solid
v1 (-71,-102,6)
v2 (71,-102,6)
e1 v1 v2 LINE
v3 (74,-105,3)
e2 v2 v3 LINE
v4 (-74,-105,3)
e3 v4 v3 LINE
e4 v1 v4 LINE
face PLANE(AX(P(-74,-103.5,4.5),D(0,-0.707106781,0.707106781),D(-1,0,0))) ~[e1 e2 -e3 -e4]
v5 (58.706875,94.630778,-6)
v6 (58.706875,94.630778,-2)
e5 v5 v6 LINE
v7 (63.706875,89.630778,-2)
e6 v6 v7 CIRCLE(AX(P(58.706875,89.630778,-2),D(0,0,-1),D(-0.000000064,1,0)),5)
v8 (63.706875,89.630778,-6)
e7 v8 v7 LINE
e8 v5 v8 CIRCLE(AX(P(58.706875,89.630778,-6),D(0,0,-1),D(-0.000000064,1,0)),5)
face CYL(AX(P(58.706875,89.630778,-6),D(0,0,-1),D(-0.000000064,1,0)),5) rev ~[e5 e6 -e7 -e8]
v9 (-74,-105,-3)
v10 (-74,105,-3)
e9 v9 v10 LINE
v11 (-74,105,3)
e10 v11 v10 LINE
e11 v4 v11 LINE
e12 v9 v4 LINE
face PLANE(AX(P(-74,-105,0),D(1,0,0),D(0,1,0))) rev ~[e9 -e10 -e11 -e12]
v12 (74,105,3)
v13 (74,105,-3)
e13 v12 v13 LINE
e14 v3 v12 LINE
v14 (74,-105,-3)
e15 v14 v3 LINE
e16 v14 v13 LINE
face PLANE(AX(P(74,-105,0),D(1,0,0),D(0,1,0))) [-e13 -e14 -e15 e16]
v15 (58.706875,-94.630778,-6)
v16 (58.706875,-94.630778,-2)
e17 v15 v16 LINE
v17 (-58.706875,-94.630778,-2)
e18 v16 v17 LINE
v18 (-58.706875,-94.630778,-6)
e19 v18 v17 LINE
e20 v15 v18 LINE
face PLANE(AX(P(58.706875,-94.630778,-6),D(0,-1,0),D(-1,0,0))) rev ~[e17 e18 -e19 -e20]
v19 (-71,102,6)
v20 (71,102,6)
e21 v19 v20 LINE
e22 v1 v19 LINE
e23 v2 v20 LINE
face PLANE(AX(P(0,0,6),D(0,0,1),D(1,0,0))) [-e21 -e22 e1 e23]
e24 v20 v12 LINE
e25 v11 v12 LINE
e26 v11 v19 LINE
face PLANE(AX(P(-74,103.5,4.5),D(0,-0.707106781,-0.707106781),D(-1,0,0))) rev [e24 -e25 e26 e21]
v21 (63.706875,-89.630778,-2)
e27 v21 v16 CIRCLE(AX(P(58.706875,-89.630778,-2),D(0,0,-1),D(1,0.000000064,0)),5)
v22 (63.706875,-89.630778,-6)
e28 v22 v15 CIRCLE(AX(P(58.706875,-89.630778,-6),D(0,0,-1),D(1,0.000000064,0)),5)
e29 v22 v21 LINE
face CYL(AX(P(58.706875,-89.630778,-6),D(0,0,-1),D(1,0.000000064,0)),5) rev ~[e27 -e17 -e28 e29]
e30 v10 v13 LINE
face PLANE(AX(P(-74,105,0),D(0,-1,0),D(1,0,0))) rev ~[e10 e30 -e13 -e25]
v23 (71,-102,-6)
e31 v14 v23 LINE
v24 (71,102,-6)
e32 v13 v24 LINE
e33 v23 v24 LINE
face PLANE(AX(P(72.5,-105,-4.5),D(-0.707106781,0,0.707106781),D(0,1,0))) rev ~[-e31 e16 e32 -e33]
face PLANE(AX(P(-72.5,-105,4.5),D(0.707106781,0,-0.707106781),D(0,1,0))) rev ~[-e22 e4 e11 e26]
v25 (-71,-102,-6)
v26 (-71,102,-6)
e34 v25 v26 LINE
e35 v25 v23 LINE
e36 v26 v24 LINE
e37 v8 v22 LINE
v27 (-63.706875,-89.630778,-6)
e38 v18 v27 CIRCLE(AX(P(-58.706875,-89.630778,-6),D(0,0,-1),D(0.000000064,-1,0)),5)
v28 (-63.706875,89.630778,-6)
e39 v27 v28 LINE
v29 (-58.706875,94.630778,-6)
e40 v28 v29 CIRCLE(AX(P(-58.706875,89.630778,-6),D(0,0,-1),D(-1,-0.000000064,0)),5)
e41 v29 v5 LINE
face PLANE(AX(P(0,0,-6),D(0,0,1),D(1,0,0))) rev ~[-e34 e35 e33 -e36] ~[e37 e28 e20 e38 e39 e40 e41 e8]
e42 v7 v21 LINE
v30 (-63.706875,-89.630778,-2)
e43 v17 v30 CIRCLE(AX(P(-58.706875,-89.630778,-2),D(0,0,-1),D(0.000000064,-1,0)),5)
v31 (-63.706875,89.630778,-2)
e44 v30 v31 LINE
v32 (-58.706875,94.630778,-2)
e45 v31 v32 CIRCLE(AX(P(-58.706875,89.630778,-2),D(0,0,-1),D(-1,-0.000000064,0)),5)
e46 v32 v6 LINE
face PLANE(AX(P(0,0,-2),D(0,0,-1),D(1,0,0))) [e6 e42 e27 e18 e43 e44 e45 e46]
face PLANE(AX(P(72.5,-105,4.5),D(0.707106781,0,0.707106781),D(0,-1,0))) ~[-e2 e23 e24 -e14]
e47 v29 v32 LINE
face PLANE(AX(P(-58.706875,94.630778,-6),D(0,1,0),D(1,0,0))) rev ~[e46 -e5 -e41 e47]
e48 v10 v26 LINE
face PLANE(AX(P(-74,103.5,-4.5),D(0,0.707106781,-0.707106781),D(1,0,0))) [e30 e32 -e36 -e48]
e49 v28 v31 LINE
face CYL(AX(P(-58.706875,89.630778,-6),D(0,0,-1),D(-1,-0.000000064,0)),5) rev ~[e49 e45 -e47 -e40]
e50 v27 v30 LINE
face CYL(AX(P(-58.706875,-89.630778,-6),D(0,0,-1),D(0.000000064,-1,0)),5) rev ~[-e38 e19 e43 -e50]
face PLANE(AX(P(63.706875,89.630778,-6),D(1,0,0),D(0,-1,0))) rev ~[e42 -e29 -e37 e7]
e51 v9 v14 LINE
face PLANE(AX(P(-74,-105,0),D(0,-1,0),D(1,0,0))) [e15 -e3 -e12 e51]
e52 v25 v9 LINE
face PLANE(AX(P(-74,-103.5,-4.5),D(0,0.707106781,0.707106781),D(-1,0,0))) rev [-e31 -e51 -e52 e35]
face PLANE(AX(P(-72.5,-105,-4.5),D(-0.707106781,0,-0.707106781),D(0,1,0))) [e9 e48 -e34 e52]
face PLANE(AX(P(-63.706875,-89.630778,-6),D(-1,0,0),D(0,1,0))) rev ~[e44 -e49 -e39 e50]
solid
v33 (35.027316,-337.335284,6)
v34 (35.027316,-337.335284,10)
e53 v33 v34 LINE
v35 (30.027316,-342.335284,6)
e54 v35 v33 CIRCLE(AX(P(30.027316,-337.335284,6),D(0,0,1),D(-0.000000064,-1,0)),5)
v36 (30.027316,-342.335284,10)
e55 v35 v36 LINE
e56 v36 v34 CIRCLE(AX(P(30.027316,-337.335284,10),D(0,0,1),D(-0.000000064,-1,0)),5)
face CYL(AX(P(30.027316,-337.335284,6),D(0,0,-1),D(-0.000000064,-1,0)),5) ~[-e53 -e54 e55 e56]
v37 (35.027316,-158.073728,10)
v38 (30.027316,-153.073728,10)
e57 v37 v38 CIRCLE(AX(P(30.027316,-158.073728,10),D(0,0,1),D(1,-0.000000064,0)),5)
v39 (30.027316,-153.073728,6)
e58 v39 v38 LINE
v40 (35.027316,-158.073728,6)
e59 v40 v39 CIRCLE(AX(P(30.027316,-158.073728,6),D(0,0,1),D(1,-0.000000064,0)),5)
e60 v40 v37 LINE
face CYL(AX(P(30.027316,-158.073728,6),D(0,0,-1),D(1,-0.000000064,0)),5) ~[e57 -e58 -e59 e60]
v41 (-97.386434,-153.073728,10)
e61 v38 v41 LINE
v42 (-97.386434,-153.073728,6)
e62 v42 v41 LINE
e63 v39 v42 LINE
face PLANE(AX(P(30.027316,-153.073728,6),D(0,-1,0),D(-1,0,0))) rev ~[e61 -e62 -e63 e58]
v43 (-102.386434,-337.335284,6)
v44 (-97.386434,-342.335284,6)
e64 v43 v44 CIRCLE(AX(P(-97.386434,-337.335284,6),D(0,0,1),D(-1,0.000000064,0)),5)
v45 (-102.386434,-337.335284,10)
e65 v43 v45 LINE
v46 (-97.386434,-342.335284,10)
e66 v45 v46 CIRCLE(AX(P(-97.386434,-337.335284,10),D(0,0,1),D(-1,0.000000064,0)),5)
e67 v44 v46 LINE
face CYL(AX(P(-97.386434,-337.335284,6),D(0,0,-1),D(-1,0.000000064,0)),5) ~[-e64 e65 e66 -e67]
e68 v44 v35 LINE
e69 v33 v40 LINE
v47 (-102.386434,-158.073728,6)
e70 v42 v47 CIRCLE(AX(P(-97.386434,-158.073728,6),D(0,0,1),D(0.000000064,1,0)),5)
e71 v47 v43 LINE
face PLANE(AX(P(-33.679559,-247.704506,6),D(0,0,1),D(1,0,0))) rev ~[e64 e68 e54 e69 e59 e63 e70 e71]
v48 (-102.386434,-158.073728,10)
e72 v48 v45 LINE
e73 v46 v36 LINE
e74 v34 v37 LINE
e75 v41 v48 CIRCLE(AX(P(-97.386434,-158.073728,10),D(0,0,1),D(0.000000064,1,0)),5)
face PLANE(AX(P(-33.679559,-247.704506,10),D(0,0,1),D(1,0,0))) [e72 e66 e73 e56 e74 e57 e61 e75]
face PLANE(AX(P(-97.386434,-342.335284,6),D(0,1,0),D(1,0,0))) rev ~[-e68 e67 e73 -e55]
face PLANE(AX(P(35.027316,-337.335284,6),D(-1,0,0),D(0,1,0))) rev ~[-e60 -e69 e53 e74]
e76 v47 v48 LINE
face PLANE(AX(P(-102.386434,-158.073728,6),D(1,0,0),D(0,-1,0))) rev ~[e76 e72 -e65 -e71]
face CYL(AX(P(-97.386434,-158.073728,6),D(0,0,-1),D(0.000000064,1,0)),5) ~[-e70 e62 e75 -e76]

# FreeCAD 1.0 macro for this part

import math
import FreeCAD as App
import Part
import Sketcher


def edges_at(feature, points):
    """Names of the edges that pass closest to the given points."""
    edges = feature.Shape.Edges
    near = lambda p: min(range(len(edges)), key=lambda i: edges[i].distToShape(Part.Vertex(*p))[0])
    return sorted({f"Edge{near(p) + 1}" for p in points})

doc = App.newDocument("Part")
body = doc.addObject("PartDesign::Body", "Body")

# Sketch on XY plane
sketch1 = body.newObject("Sketcher::SketchObject", "Sketch")
sketch1.AttachmentSupport = (doc.getObject("XY_Plane"), [""])
sketch1.MapMode = "FlatFace"
sketch1.addGeometry([
    Part.LineSegment(App.Vector(-74, 105, 0), App.Vector(-74, -105, 0)),
    Part.LineSegment(App.Vector(-74, -105, 0), App.Vector(74, -105, 0)),
    Part.LineSegment(App.Vector(74, -105, 0), App.Vector(74, 105, 0)),
    Part.LineSegment(App.Vector(74, 105, 0), App.Vector(-74, 105, 0)),
], False)
sketch1.addConstraint([
    Sketcher.Constraint("Coincident", 0, 2, 1, 1),
    Sketcher.Constraint("Coincident", 1, 2, 2, 1),
    Sketcher.Constraint("Coincident", 2, 2, 3, 1),
    Sketcher.Constraint("Coincident", 3, 2, 0, 1),
    Sketcher.Constraint("Vertical", 0),
    Sketcher.Constraint("Horizontal", 1),
    Sketcher.Constraint("Vertical", 2),
    Sketcher.Constraint("Horizontal", 3),
    Sketcher.Constraint("Symmetric", 0, 2, 2, 2, -1, 1),
    Sketcher.Constraint("DistanceX", 1, 1, 1, 2, 148.0),
    Sketcher.Constraint("DistanceY", 0, 2, 0, 1, 210.0),
])
pad1 = body.newObject("PartDesign::Pad", "Pad")
pad1.Profile = sketch1
pad1.Length = 12
pad1.Midplane = True
doc.recompute()

chamfer = body.newObject("PartDesign::Chamfer", "Chamfer")
chamfer.Base = (pad1, edges_at(pad1, [
    (74, 0, 6),
    (74, 0, -6),
    (0, -105, -6),
    (0, -105, 6),
    (-74, 0, 6),
    (-74, 0, -6),
    (0, 105, -6),
    (0, 105, 6),
]))
chamfer.Size = 3

# Sketch on XY plane
sketch2 = body.newObject("Sketcher::SketchObject", "Sketch001")
sketch2.AttachmentSupport = (doc.getObject("XY_Plane"), [""])
sketch2.MapMode = "FlatFace"
sketch2.AttachmentOffset = App.Placement(App.Vector(0, 0, -6), App.Rotation())
sketch2.addGeometry([
    Part.LineSegment(App.Vector(58.7, -94.6, 0), App.Vector(-58.7, -94.6, 0)),  # 0
    Part.ArcOfCircle(Part.Circle(App.Vector(-58.7, -89.6, 0), App.Vector(0, 0, 1), 5), math.radians(180), math.radians(270)),  # 1
    Part.LineSegment(App.Vector(-63.7, -89.6, 0), App.Vector(-63.7, 89.6, 0)),  # 2
    Part.ArcOfCircle(Part.Circle(App.Vector(-58.7, 89.6, 0), App.Vector(0, 0, 1), 5), math.radians(90), math.radians(180)),  # 3
    Part.LineSegment(App.Vector(-58.7, 94.6, 0), App.Vector(58.7, 94.6, 0)),  # 4
    Part.ArcOfCircle(Part.Circle(App.Vector(58.7, 89.6, 0), App.Vector(0, 0, 1), 5), math.radians(0), math.radians(90)),  # 5
    Part.LineSegment(App.Vector(63.7, 89.6, 0), App.Vector(63.7, -89.6, 0)),  # 6
    Part.ArcOfCircle(Part.Circle(App.Vector(58.7, -89.6, 0), App.Vector(0, 0, 1), 5), math.radians(-90), math.radians(0)),  # 7
], False)
sketch2.addConstraint([
    Sketcher.Constraint("Tangent", 0, 2, 1, 2),
    Sketcher.Constraint("Tangent", 1, 1, 2, 1),
    Sketcher.Constraint("Tangent", 2, 2, 3, 2),
    Sketcher.Constraint("Tangent", 3, 1, 4, 1),
    Sketcher.Constraint("Tangent", 4, 2, 5, 2),
    Sketcher.Constraint("Tangent", 5, 1, 6, 1),
    Sketcher.Constraint("Tangent", 6, 2, 7, 2),
    Sketcher.Constraint("Tangent", 7, 1, 0, 1),
    Sketcher.Constraint("Horizontal", 0),
    Sketcher.Constraint("Vertical", 2),
    Sketcher.Constraint("Horizontal", 4),
    Sketcher.Constraint("Vertical", 6),
    Sketcher.Constraint("Equal", 1, 3),
    Sketcher.Constraint("Equal", 3, 5),
    Sketcher.Constraint("Equal", 5, 7),
    Sketcher.Constraint("Symmetric", 1, 3, 5, 3, -1, 1),
    Sketcher.Constraint("Radius", 1, 5.0),
    Sketcher.Constraint("DistanceX", 0, 2, 0, 1, 117.41375),
    Sketcher.Constraint("DistanceY", 2, 1, 2, 2, 179.261556),
])
pocket1 = body.newObject("PartDesign::Pocket", "Pocket")
pocket1.Profile = sketch2
pocket1.Length = 4
pocket1.Reversed = True
body2 = doc.addObject("PartDesign::Body", "Body001")

# Sketch on XY plane
sketch3 = body2.newObject("Sketcher::SketchObject", "Sketch002")
sketch3.AttachmentSupport = (doc.getObject("XY_Plane001"), [""])
sketch3.MapMode = "FlatFace"
sketch3.AttachmentOffset = App.Placement(App.Vector(0, 0, 6), App.Rotation())
sketch3.addGeometry([
    Part.LineSegment(App.Vector(30, -153.1, 0), App.Vector(-97.4, -153.1, 0)),  # 0
    Part.ArcOfCircle(Part.Circle(App.Vector(-97.4, -158.1, 0), App.Vector(0, 0, 1), 5), math.radians(90), math.radians(180)),  # 1
    Part.LineSegment(App.Vector(-102.4, -158.1, 0), App.Vector(-102.4, -337.3, 0)),  # 2
    Part.ArcOfCircle(Part.Circle(App.Vector(-97.4, -337.3, 0), App.Vector(0, 0, 1), 5), math.radians(180), math.radians(270)),  # 3
    Part.LineSegment(App.Vector(-97.4, -342.3, 0), App.Vector(30, -342.3, 0)),  # 4
    Part.ArcOfCircle(Part.Circle(App.Vector(30, -337.3, 0), App.Vector(0, 0, 1), 5), math.radians(-90), math.radians(0)),  # 5
    Part.LineSegment(App.Vector(35, -337.3, 0), App.Vector(35, -158.1, 0)),  # 6
    Part.ArcOfCircle(Part.Circle(App.Vector(30, -158.1, 0), App.Vector(0, 0, 1), 5), math.radians(0), math.radians(90)),  # 7
], False)
sketch3.addConstraint([
    Sketcher.Constraint("Tangent", 0, 2, 1, 1),
    Sketcher.Constraint("Tangent", 1, 2, 2, 1),
    Sketcher.Constraint("Tangent", 2, 2, 3, 1),
    Sketcher.Constraint("Tangent", 3, 2, 4, 1),
    Sketcher.Constraint("Tangent", 4, 2, 5, 1),
    Sketcher.Constraint("Tangent", 5, 2, 6, 1),
    Sketcher.Constraint("Tangent", 6, 2, 7, 1),
    Sketcher.Constraint("Tangent", 7, 2, 0, 1),
    Sketcher.Constraint("Horizontal", 0),
    Sketcher.Constraint("Vertical", 2),
    Sketcher.Constraint("Horizontal", 4),
    Sketcher.Constraint("Vertical", 6),
    Sketcher.Constraint("Equal", 1, 3),
    Sketcher.Constraint("Equal", 3, 5),
    Sketcher.Constraint("Equal", 5, 7),
    Sketcher.Constraint("Radius", 1, 5.0),
    Sketcher.Constraint("DistanceX", 0, 2, 0, 1, 127.41375),
    Sketcher.Constraint("DistanceY", 2, 2, 2, 1, 179.261556),
    Sketcher.Constraint("DistanceY", 7, 2, -1, 1, 153.073728),
    Sketcher.Constraint("DistanceX", 1, 3, -1, 1, 97.386434),
])
pad2 = body2.newObject("PartDesign::Pad", "Pad001")
pad2.Profile = sketch3
pad2.Length = 4

doc.recompute()
